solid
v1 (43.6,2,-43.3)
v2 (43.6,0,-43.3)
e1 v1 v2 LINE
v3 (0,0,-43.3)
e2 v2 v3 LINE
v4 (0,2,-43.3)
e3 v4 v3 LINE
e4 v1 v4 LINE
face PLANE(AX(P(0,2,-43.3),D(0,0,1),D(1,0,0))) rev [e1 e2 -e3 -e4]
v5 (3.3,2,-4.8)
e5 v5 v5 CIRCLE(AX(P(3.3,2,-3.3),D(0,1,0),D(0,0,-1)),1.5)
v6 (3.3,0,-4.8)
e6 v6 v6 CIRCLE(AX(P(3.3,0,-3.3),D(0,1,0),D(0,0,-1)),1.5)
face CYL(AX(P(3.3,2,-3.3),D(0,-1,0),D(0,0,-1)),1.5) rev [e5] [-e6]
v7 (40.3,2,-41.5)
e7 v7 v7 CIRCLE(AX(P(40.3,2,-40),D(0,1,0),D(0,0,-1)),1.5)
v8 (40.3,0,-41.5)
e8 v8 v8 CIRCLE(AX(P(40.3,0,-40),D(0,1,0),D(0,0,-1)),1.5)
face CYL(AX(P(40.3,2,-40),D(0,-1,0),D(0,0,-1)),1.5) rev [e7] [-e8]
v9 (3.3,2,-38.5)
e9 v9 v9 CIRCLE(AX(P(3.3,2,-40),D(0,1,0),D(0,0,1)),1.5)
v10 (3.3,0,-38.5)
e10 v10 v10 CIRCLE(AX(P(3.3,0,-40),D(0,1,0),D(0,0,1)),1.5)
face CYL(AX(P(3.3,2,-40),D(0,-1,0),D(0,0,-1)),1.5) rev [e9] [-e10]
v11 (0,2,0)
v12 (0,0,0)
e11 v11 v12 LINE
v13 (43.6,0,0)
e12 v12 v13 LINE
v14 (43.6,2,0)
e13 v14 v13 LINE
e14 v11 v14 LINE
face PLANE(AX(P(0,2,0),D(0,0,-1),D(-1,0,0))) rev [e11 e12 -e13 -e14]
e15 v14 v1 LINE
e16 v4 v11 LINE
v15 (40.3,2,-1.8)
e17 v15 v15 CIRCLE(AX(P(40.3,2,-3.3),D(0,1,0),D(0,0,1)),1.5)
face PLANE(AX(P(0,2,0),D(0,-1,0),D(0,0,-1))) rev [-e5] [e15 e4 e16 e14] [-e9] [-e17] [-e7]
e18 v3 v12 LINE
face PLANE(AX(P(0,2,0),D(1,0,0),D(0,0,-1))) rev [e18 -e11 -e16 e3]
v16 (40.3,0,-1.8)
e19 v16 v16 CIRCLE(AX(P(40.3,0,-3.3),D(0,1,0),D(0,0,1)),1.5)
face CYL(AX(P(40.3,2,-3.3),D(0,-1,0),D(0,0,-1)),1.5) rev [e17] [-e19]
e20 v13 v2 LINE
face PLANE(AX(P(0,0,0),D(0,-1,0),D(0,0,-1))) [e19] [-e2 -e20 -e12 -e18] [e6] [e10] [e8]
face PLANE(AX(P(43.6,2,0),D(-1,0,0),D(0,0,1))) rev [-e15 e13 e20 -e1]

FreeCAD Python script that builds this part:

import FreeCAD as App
import Part
import Sketcher
Q = App.Units.Quantity

doc = App.newDocument("Part")
body = doc.addObject("PartDesign::Body", "Body")

sketch1 = body.newObject("Sketcher::SketchObject", "Sketch")
sketch1.AttachmentSupport = (doc.getObject("XZ_Plane"), [""])
sketch1.MapMode = "FlatFace"
sketch1.addGeometry([
    Part.LineSegment(App.Vector(0, -43.3, 0), App.Vector(0, 0, 0)),
    Part.LineSegment(App.Vector(0, 0, 0), App.Vector(43.6, 0, 0)),
    Part.LineSegment(App.Vector(43.6, 0, 0), App.Vector(43.6, -43.3, 0)),
    Part.LineSegment(App.Vector(43.6, -43.3, 0), App.Vector(0, -43.3, 0)),
    Part.Circle(App.Vector(3.3, -3.3, 0), App.Vector(0, 0, 1), 1.5),
    Part.Circle(App.Vector(40.3, -3.3, 0), App.Vector(0, 0, 1), 1.5),
    Part.Circle(App.Vector(3.3, -40, 0), App.Vector(0, 0, 1), 1.5),
    Part.Circle(App.Vector(40.3, -40, 0), App.Vector(0, 0, 1), 1.5),
], False)
sketch1.addConstraint([
    Sketcher.Constraint("Coincident", 0, 2, 1, 1),
    Sketcher.Constraint("Coincident", 1, 2, 2, 1),
    Sketcher.Constraint("Coincident", 2, 2, 3, 1),
    Sketcher.Constraint("Coincident", 3, 2, 0, 1),
    Sketcher.Constraint("Vertical", 0),
    Sketcher.Constraint("Horizontal", 1),
    Sketcher.Constraint("Vertical", 2),
    Sketcher.Constraint("Horizontal", 3),
    Sketcher.Constraint("Coincident", 0, 2, -1, 1),
    Sketcher.Constraint("Equal", 4, 5),
    Sketcher.Constraint("Equal", 5, 6),
    Sketcher.Constraint("Equal", 6, 7),
    Sketcher.Constraint("Horizontal", 4, 3, 5, 3),
    Sketcher.Constraint("Horizontal", 6, 3, 7, 3),
    Sketcher.Constraint("Vertical", 4, 3, 6, 3),
    Sketcher.Constraint("Vertical", 5, 3, 7, 3),
    Sketcher.Constraint("Diameter", 4, Q("3 mm")),
    Sketcher.Constraint("DistanceX", 1, 1, 1, 2, Q("43.6 mm")),
    Sketcher.Constraint("DistanceY", 0, 1, 0, 2, Q("43.3 mm")),
    Sketcher.Constraint("DistanceY", 6, 3, -1, 1, Q("40 mm")),
    Sketcher.Constraint("DistanceX", 4, 3, 5, 3, Q("37 mm")),
    Sketcher.Constraint("DistanceY", 2, 2, 5, 3, Q("40 mm")),
    Sketcher.Constraint("DistanceX", -1, 1, 4, 3, Q("3.3 mm")),
])
pad1 = body.newObject("PartDesign::Pad", "Pad")
pad1.Profile = sketch1
pad1.Length = 2
pad1.Reversed = True

doc.recompute()
